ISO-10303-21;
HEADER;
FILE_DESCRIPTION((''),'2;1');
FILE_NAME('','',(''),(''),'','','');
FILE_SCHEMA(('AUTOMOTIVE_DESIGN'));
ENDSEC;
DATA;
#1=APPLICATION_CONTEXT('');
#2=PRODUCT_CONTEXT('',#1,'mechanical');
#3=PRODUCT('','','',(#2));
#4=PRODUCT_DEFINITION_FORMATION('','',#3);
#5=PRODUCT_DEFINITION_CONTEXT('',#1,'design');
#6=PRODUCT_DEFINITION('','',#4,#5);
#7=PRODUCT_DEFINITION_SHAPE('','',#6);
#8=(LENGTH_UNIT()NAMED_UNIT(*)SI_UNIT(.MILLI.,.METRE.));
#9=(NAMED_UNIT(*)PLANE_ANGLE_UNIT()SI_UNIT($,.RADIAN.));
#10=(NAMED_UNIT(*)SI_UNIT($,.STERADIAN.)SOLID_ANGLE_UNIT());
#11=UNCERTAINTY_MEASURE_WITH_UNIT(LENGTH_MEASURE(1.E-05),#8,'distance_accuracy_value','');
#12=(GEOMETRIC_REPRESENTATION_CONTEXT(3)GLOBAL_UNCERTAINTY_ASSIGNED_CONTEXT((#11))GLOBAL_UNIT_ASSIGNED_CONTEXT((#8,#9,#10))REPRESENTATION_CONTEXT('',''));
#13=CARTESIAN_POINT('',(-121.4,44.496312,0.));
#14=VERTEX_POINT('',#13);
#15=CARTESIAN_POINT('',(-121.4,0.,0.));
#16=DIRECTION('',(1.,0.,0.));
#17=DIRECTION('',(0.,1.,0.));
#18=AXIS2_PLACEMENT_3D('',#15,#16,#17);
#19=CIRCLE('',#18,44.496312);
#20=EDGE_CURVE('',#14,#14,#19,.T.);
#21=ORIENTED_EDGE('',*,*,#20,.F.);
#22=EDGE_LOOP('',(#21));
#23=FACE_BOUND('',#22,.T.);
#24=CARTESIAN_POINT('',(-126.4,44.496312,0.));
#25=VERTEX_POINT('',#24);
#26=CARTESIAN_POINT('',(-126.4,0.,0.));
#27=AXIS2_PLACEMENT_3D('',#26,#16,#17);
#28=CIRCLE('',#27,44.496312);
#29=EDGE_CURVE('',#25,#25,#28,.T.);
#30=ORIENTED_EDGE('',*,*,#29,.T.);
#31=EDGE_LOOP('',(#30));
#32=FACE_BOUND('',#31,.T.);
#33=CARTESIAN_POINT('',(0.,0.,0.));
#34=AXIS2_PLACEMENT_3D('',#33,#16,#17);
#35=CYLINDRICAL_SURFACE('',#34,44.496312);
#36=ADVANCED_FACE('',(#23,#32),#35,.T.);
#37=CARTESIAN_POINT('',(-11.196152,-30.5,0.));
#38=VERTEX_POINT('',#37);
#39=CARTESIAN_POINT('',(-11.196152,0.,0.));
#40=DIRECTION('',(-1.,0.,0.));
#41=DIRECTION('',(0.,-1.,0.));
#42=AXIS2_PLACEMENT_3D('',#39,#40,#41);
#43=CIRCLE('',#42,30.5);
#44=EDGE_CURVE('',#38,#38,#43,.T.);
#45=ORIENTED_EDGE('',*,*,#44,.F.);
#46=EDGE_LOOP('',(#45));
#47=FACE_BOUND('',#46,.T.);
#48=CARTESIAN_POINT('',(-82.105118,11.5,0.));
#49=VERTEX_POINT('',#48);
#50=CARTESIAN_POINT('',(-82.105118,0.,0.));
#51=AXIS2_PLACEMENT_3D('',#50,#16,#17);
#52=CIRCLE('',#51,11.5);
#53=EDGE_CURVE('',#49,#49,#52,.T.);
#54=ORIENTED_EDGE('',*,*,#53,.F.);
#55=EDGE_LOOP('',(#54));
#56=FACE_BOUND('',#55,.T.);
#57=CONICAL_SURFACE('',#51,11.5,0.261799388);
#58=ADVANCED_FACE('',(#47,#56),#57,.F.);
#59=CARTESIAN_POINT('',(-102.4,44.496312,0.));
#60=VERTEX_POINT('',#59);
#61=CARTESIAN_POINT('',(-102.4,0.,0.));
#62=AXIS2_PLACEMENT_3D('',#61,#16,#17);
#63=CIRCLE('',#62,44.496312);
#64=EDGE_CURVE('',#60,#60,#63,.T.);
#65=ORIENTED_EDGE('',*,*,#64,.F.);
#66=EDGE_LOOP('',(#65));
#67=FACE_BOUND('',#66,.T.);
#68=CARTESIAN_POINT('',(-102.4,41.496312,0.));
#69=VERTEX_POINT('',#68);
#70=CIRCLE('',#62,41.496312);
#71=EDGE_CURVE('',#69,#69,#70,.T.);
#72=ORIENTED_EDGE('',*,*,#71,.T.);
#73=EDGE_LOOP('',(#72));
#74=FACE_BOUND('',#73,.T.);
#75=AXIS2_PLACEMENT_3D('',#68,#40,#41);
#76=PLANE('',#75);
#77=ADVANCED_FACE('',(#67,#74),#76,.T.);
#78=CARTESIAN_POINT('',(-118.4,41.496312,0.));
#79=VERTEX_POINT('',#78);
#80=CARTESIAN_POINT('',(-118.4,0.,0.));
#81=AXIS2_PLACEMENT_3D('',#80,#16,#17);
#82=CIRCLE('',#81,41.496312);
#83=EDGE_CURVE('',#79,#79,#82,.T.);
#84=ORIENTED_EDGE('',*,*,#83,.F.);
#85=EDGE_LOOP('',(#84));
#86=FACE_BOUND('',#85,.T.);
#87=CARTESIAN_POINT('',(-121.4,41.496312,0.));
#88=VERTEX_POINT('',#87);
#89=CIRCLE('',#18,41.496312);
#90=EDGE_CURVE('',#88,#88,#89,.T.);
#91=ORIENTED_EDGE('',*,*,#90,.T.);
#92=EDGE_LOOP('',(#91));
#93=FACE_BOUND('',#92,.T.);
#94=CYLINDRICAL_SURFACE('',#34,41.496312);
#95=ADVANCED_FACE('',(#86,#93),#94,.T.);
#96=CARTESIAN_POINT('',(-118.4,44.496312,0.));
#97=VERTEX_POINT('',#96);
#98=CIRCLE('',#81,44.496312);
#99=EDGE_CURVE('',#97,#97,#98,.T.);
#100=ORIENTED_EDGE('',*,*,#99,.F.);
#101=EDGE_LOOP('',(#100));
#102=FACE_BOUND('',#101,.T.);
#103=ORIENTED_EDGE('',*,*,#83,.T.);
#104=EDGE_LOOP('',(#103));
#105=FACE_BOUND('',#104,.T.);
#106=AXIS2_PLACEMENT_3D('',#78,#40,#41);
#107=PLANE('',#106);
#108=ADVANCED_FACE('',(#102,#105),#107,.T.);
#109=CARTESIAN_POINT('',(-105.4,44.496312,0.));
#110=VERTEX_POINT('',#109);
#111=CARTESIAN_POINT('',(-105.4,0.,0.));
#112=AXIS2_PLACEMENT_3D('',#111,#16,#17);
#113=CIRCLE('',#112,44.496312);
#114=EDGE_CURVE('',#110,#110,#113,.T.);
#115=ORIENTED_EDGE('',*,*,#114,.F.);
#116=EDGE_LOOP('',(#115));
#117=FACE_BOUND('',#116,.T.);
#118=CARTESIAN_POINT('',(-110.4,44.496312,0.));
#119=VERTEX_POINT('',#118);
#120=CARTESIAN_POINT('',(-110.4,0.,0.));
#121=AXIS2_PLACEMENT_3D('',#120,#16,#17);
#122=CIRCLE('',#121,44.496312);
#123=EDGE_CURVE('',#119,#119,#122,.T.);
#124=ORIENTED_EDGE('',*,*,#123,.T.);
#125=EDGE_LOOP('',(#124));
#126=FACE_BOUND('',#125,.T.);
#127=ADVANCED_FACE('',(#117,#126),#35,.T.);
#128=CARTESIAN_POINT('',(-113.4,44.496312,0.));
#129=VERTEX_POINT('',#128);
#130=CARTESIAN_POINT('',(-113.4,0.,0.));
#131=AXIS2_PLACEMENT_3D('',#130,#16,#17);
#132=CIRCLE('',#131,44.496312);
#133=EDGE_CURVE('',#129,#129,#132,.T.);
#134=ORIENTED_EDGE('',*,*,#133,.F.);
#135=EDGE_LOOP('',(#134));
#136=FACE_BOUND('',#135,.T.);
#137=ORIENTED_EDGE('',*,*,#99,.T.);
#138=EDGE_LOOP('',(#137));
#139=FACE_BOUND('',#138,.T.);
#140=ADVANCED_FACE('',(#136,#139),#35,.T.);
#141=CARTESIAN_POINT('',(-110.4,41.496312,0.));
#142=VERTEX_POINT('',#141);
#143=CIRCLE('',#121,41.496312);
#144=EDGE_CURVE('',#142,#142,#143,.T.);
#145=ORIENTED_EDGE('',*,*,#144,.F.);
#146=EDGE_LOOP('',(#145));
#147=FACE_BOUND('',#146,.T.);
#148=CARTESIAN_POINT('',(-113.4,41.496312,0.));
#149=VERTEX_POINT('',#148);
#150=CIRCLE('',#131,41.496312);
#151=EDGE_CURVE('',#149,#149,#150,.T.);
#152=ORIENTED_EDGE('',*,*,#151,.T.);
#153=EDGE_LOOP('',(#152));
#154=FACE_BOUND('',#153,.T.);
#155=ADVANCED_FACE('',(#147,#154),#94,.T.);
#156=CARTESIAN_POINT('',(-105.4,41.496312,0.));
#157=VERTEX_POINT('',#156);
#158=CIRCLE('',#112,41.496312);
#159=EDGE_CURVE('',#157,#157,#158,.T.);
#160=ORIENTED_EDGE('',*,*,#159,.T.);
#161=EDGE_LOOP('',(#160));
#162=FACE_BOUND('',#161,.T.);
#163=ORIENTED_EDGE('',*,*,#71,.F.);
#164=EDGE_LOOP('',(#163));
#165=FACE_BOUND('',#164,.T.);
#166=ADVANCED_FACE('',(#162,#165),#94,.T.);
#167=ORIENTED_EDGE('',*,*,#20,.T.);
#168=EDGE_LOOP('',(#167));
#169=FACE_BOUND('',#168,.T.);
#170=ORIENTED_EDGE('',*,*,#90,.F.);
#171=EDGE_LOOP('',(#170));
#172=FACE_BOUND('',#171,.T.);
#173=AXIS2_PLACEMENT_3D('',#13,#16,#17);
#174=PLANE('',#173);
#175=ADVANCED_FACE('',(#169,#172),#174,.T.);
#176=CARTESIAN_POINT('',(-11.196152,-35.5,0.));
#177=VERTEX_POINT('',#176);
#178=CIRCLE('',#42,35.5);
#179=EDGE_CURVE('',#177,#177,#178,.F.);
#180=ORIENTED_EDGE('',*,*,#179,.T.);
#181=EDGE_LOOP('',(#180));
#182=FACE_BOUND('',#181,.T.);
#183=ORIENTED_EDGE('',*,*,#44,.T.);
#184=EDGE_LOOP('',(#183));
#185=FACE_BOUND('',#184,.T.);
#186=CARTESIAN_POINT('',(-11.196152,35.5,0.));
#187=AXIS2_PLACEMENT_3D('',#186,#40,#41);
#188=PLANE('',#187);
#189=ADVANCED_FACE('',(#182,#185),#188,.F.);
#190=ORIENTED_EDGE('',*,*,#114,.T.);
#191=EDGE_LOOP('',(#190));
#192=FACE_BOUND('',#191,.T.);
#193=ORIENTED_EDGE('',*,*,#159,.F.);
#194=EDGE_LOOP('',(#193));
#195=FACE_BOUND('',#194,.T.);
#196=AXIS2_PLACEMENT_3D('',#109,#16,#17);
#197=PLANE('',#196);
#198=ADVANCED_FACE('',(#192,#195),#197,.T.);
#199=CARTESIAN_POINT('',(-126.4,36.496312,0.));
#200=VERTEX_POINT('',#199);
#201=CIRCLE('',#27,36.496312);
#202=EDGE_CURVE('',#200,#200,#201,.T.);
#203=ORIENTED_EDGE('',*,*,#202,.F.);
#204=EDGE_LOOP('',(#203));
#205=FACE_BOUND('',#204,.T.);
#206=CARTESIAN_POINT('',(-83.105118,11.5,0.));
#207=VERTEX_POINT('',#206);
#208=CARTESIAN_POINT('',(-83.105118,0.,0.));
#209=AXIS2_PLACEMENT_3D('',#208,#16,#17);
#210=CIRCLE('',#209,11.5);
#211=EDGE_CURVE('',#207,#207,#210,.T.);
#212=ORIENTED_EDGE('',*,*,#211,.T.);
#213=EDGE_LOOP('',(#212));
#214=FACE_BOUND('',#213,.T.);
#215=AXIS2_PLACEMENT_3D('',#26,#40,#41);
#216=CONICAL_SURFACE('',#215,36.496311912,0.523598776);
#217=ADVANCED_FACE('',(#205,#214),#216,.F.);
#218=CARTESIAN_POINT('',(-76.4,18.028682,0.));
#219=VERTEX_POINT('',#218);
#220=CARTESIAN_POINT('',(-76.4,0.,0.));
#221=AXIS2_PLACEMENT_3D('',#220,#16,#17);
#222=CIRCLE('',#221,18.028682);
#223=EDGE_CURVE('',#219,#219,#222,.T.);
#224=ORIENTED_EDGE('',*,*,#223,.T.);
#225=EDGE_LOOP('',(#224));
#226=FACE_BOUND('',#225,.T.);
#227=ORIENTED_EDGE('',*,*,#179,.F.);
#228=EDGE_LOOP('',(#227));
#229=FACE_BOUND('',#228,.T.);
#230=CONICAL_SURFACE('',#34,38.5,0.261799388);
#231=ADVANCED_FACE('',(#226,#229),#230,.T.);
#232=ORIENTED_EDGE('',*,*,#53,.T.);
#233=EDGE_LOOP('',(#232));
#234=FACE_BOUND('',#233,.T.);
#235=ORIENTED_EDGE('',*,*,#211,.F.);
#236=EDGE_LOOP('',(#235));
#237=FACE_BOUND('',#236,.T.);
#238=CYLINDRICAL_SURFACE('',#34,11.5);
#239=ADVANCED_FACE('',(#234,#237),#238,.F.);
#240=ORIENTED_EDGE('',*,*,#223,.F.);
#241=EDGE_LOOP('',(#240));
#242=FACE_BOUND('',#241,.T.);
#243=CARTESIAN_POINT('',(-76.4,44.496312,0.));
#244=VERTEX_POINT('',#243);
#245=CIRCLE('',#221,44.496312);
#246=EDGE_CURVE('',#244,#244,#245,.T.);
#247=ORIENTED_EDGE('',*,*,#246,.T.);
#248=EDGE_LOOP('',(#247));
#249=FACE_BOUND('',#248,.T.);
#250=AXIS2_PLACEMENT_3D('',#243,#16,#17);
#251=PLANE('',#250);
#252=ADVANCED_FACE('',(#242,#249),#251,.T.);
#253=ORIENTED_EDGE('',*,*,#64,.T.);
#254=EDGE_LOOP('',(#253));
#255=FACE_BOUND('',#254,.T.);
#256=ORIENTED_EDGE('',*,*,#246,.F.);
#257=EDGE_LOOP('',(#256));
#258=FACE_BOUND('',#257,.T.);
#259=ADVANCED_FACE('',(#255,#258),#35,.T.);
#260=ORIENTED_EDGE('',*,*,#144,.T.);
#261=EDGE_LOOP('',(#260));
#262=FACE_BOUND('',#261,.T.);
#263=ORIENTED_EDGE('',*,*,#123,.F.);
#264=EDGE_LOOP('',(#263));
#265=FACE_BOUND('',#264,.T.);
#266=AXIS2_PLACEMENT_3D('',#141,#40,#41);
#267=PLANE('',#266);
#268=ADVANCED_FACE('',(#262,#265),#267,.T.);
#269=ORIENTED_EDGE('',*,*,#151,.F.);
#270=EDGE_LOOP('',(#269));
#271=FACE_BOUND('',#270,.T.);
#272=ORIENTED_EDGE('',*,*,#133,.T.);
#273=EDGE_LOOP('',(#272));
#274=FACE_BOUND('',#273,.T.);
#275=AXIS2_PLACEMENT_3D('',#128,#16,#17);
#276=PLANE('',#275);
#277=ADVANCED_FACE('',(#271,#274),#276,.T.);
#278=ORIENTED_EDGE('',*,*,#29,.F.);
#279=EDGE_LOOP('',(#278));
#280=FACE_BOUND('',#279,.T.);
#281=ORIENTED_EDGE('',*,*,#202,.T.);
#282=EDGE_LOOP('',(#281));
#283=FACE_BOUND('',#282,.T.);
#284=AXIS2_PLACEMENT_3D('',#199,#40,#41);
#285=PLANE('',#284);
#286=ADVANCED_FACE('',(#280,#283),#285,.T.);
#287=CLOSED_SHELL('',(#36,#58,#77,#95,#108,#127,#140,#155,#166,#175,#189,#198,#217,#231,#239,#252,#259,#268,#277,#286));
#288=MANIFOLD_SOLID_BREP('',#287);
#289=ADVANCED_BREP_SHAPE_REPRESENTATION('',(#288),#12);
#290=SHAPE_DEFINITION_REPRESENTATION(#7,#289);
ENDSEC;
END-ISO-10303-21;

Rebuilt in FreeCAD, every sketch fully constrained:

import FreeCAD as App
import Part
import Sketcher
Q = App.Units.Quantity


def add_polygon(sketch, points):
    """Adds a closed chain of lines whose ends are joined by coincident constraints."""
    first, n = sketch.GeometryCount, len(points)
    for a, b in zip(points, points[1:] + points[:1]):
        sketch.addGeometry(Part.LineSegment(App.Vector(*a, 0), App.Vector(*b, 0)), False)
    for i in range(n):
        sketch.addConstraint(Sketcher.Constraint("Coincident", first + i, 2, first + (i + 1) % n, 1))

doc = App.newDocument("Part")
body = doc.addObject("PartDesign::Body", "Body")

# Sketch on XY plane
sketch1 = body.newObject("Sketcher::SketchObject", "Sketch")
sketch1.AttachmentSupport = (doc.getObject("XY_Plane"), [""])
sketch1.MapMode = "FlatFace"
add_polygon(sketch1, [(-82.1, 11.5), (0, 33.5), (0, 38.5), (-76.4, 18), (-76.4, 44.5), (-102.4, 44.5), (-102.4, 41.5), (-105.4, 41.5), (-105.4, 44.5), (-110.4, 44.5), (-110.4, 41.5), (-113.4, 41.5), (-113.4, 44.5), (-118.4, 44.5), (-118.4, 41.5), (-121.4, 41.5), (-121.4, 44.5), (-126.4, 44.5), (-126.4, 36.5), (-83.1, 11.5)])  # lines 0-19
sketch1.addConstraint([
    Sketcher.Constraint("Vertical", 1),
    Sketcher.Constraint("Vertical", 3),
    Sketcher.Constraint("Horizontal", 4),
    Sketcher.Constraint("Vertical", 5),
    Sketcher.Constraint("Horizontal", 6),
    Sketcher.Constraint("Vertical", 7),
    Sketcher.Constraint("Horizontal", 8),
    Sketcher.Constraint("Vertical", 9),
    Sketcher.Constraint("Horizontal", 10),
    Sketcher.Constraint("Vertical", 11),
    Sketcher.Constraint("Horizontal", 12),
    Sketcher.Constraint("Vertical", 13),
    Sketcher.Constraint("Horizontal", 14),
    Sketcher.Constraint("Vertical", 15),
    Sketcher.Constraint("Horizontal", 16),
    Sketcher.Constraint("Vertical", 17),
    Sketcher.Constraint("Horizontal", 19),
    Sketcher.Constraint("PointOnObject", 0, 2, -2),
    Sketcher.Constraint("Parallel", 0, 2),
    Sketcher.Constraint("Horizontal", 4, 2, 7, 2),
    Sketcher.Constraint("Horizontal", 6, 2, 9, 2),
    Sketcher.Constraint("Horizontal", 8, 2, 11, 2),
    Sketcher.Constraint("Horizontal", 10, 2, 13, 2),
    Sketcher.Constraint("Horizontal", 12, 2, 15, 2),
    Sketcher.Constraint("Equal", 6, 10),
    Sketcher.Constraint("Equal", 8, 12),
    Sketcher.Constraint("Equal", 10, 14),
    Sketcher.Constraint("Equal", 12, 16),
    Sketcher.Constraint("Equal", 16, 1),
    Sketcher.Constraint("Equal", 14, 5),
    Sketcher.Constraint("DistanceX", 4, 2, 4, 1, Q("26 mm")),
    Sketcher.Constraint("DistanceX", 6, 2, 6, 1, Q("3 mm")),
    Sketcher.Constraint("DistanceX", 8, 2, 8, 1, Q("5 mm")),
    Sketcher.Constraint("DistanceX", 19, 1, 19, 2, Q("1 mm")),
    Sketcher.Constraint("DistanceY", 17, 2, 17, 1, Q("8 mm")),
    Sketcher.Constraint("Angle", 0, Q("15 deg")),
    Sketcher.Constraint("Angle", 18, Q("-30 deg")),
    Sketcher.Constraint("DistanceY", -1, 1, 0, 2, Q("33.5 mm")),
    Sketcher.Constraint("DistanceX", 2, 2, -1, 1, Q("76.4 mm")),
    Sketcher.Constraint("DistanceY", -1, 1, 18, 2, Q("11.5 mm")),
])
revolution = body.newObject("PartDesign::Revolution", "Revolution")
revolution.Profile = sketch1
revolution.ReferenceAxis = (sketch1, ["H_Axis"])
revolution.Angle = 360

# Sketch on XY plane
sketch2 = body.newObject("Sketcher::SketchObject", "Sketch001")
sketch2.AttachmentSupport = (doc.getObject("XY_Plane"), [""])
sketch2.MapMode = "FlatFace"
add_polygon(sketch2, [(-11, 56), (-11, 0), (15, 0), (15, 56)])  # lines 0-3
sketch2.addConstraint([
    Sketcher.Constraint("Vertical", 0),
    Sketcher.Constraint("Horizontal", 1),
    Sketcher.Constraint("Vertical", 2),
    Sketcher.Constraint("Horizontal", 3),
    Sketcher.Constraint("PointOnObject", 0, 2, -1),
    Sketcher.Constraint("DistanceX", 1, 1, 1, 2, Q("25.727488 mm")),
    Sketcher.Constraint("DistanceY", 0, 2, 0, 1, Q("56.271944 mm")),
    Sketcher.Constraint("DistanceX", 0, 2, -1, 1, Q("11.196152 mm")),
])
groove = body.newObject("PartDesign::Groove", "Groove")
groove.Profile = sketch2
groove.ReferenceAxis = (sketch2, ["H_Axis"])
groove.Angle = 360

doc.recompute()
